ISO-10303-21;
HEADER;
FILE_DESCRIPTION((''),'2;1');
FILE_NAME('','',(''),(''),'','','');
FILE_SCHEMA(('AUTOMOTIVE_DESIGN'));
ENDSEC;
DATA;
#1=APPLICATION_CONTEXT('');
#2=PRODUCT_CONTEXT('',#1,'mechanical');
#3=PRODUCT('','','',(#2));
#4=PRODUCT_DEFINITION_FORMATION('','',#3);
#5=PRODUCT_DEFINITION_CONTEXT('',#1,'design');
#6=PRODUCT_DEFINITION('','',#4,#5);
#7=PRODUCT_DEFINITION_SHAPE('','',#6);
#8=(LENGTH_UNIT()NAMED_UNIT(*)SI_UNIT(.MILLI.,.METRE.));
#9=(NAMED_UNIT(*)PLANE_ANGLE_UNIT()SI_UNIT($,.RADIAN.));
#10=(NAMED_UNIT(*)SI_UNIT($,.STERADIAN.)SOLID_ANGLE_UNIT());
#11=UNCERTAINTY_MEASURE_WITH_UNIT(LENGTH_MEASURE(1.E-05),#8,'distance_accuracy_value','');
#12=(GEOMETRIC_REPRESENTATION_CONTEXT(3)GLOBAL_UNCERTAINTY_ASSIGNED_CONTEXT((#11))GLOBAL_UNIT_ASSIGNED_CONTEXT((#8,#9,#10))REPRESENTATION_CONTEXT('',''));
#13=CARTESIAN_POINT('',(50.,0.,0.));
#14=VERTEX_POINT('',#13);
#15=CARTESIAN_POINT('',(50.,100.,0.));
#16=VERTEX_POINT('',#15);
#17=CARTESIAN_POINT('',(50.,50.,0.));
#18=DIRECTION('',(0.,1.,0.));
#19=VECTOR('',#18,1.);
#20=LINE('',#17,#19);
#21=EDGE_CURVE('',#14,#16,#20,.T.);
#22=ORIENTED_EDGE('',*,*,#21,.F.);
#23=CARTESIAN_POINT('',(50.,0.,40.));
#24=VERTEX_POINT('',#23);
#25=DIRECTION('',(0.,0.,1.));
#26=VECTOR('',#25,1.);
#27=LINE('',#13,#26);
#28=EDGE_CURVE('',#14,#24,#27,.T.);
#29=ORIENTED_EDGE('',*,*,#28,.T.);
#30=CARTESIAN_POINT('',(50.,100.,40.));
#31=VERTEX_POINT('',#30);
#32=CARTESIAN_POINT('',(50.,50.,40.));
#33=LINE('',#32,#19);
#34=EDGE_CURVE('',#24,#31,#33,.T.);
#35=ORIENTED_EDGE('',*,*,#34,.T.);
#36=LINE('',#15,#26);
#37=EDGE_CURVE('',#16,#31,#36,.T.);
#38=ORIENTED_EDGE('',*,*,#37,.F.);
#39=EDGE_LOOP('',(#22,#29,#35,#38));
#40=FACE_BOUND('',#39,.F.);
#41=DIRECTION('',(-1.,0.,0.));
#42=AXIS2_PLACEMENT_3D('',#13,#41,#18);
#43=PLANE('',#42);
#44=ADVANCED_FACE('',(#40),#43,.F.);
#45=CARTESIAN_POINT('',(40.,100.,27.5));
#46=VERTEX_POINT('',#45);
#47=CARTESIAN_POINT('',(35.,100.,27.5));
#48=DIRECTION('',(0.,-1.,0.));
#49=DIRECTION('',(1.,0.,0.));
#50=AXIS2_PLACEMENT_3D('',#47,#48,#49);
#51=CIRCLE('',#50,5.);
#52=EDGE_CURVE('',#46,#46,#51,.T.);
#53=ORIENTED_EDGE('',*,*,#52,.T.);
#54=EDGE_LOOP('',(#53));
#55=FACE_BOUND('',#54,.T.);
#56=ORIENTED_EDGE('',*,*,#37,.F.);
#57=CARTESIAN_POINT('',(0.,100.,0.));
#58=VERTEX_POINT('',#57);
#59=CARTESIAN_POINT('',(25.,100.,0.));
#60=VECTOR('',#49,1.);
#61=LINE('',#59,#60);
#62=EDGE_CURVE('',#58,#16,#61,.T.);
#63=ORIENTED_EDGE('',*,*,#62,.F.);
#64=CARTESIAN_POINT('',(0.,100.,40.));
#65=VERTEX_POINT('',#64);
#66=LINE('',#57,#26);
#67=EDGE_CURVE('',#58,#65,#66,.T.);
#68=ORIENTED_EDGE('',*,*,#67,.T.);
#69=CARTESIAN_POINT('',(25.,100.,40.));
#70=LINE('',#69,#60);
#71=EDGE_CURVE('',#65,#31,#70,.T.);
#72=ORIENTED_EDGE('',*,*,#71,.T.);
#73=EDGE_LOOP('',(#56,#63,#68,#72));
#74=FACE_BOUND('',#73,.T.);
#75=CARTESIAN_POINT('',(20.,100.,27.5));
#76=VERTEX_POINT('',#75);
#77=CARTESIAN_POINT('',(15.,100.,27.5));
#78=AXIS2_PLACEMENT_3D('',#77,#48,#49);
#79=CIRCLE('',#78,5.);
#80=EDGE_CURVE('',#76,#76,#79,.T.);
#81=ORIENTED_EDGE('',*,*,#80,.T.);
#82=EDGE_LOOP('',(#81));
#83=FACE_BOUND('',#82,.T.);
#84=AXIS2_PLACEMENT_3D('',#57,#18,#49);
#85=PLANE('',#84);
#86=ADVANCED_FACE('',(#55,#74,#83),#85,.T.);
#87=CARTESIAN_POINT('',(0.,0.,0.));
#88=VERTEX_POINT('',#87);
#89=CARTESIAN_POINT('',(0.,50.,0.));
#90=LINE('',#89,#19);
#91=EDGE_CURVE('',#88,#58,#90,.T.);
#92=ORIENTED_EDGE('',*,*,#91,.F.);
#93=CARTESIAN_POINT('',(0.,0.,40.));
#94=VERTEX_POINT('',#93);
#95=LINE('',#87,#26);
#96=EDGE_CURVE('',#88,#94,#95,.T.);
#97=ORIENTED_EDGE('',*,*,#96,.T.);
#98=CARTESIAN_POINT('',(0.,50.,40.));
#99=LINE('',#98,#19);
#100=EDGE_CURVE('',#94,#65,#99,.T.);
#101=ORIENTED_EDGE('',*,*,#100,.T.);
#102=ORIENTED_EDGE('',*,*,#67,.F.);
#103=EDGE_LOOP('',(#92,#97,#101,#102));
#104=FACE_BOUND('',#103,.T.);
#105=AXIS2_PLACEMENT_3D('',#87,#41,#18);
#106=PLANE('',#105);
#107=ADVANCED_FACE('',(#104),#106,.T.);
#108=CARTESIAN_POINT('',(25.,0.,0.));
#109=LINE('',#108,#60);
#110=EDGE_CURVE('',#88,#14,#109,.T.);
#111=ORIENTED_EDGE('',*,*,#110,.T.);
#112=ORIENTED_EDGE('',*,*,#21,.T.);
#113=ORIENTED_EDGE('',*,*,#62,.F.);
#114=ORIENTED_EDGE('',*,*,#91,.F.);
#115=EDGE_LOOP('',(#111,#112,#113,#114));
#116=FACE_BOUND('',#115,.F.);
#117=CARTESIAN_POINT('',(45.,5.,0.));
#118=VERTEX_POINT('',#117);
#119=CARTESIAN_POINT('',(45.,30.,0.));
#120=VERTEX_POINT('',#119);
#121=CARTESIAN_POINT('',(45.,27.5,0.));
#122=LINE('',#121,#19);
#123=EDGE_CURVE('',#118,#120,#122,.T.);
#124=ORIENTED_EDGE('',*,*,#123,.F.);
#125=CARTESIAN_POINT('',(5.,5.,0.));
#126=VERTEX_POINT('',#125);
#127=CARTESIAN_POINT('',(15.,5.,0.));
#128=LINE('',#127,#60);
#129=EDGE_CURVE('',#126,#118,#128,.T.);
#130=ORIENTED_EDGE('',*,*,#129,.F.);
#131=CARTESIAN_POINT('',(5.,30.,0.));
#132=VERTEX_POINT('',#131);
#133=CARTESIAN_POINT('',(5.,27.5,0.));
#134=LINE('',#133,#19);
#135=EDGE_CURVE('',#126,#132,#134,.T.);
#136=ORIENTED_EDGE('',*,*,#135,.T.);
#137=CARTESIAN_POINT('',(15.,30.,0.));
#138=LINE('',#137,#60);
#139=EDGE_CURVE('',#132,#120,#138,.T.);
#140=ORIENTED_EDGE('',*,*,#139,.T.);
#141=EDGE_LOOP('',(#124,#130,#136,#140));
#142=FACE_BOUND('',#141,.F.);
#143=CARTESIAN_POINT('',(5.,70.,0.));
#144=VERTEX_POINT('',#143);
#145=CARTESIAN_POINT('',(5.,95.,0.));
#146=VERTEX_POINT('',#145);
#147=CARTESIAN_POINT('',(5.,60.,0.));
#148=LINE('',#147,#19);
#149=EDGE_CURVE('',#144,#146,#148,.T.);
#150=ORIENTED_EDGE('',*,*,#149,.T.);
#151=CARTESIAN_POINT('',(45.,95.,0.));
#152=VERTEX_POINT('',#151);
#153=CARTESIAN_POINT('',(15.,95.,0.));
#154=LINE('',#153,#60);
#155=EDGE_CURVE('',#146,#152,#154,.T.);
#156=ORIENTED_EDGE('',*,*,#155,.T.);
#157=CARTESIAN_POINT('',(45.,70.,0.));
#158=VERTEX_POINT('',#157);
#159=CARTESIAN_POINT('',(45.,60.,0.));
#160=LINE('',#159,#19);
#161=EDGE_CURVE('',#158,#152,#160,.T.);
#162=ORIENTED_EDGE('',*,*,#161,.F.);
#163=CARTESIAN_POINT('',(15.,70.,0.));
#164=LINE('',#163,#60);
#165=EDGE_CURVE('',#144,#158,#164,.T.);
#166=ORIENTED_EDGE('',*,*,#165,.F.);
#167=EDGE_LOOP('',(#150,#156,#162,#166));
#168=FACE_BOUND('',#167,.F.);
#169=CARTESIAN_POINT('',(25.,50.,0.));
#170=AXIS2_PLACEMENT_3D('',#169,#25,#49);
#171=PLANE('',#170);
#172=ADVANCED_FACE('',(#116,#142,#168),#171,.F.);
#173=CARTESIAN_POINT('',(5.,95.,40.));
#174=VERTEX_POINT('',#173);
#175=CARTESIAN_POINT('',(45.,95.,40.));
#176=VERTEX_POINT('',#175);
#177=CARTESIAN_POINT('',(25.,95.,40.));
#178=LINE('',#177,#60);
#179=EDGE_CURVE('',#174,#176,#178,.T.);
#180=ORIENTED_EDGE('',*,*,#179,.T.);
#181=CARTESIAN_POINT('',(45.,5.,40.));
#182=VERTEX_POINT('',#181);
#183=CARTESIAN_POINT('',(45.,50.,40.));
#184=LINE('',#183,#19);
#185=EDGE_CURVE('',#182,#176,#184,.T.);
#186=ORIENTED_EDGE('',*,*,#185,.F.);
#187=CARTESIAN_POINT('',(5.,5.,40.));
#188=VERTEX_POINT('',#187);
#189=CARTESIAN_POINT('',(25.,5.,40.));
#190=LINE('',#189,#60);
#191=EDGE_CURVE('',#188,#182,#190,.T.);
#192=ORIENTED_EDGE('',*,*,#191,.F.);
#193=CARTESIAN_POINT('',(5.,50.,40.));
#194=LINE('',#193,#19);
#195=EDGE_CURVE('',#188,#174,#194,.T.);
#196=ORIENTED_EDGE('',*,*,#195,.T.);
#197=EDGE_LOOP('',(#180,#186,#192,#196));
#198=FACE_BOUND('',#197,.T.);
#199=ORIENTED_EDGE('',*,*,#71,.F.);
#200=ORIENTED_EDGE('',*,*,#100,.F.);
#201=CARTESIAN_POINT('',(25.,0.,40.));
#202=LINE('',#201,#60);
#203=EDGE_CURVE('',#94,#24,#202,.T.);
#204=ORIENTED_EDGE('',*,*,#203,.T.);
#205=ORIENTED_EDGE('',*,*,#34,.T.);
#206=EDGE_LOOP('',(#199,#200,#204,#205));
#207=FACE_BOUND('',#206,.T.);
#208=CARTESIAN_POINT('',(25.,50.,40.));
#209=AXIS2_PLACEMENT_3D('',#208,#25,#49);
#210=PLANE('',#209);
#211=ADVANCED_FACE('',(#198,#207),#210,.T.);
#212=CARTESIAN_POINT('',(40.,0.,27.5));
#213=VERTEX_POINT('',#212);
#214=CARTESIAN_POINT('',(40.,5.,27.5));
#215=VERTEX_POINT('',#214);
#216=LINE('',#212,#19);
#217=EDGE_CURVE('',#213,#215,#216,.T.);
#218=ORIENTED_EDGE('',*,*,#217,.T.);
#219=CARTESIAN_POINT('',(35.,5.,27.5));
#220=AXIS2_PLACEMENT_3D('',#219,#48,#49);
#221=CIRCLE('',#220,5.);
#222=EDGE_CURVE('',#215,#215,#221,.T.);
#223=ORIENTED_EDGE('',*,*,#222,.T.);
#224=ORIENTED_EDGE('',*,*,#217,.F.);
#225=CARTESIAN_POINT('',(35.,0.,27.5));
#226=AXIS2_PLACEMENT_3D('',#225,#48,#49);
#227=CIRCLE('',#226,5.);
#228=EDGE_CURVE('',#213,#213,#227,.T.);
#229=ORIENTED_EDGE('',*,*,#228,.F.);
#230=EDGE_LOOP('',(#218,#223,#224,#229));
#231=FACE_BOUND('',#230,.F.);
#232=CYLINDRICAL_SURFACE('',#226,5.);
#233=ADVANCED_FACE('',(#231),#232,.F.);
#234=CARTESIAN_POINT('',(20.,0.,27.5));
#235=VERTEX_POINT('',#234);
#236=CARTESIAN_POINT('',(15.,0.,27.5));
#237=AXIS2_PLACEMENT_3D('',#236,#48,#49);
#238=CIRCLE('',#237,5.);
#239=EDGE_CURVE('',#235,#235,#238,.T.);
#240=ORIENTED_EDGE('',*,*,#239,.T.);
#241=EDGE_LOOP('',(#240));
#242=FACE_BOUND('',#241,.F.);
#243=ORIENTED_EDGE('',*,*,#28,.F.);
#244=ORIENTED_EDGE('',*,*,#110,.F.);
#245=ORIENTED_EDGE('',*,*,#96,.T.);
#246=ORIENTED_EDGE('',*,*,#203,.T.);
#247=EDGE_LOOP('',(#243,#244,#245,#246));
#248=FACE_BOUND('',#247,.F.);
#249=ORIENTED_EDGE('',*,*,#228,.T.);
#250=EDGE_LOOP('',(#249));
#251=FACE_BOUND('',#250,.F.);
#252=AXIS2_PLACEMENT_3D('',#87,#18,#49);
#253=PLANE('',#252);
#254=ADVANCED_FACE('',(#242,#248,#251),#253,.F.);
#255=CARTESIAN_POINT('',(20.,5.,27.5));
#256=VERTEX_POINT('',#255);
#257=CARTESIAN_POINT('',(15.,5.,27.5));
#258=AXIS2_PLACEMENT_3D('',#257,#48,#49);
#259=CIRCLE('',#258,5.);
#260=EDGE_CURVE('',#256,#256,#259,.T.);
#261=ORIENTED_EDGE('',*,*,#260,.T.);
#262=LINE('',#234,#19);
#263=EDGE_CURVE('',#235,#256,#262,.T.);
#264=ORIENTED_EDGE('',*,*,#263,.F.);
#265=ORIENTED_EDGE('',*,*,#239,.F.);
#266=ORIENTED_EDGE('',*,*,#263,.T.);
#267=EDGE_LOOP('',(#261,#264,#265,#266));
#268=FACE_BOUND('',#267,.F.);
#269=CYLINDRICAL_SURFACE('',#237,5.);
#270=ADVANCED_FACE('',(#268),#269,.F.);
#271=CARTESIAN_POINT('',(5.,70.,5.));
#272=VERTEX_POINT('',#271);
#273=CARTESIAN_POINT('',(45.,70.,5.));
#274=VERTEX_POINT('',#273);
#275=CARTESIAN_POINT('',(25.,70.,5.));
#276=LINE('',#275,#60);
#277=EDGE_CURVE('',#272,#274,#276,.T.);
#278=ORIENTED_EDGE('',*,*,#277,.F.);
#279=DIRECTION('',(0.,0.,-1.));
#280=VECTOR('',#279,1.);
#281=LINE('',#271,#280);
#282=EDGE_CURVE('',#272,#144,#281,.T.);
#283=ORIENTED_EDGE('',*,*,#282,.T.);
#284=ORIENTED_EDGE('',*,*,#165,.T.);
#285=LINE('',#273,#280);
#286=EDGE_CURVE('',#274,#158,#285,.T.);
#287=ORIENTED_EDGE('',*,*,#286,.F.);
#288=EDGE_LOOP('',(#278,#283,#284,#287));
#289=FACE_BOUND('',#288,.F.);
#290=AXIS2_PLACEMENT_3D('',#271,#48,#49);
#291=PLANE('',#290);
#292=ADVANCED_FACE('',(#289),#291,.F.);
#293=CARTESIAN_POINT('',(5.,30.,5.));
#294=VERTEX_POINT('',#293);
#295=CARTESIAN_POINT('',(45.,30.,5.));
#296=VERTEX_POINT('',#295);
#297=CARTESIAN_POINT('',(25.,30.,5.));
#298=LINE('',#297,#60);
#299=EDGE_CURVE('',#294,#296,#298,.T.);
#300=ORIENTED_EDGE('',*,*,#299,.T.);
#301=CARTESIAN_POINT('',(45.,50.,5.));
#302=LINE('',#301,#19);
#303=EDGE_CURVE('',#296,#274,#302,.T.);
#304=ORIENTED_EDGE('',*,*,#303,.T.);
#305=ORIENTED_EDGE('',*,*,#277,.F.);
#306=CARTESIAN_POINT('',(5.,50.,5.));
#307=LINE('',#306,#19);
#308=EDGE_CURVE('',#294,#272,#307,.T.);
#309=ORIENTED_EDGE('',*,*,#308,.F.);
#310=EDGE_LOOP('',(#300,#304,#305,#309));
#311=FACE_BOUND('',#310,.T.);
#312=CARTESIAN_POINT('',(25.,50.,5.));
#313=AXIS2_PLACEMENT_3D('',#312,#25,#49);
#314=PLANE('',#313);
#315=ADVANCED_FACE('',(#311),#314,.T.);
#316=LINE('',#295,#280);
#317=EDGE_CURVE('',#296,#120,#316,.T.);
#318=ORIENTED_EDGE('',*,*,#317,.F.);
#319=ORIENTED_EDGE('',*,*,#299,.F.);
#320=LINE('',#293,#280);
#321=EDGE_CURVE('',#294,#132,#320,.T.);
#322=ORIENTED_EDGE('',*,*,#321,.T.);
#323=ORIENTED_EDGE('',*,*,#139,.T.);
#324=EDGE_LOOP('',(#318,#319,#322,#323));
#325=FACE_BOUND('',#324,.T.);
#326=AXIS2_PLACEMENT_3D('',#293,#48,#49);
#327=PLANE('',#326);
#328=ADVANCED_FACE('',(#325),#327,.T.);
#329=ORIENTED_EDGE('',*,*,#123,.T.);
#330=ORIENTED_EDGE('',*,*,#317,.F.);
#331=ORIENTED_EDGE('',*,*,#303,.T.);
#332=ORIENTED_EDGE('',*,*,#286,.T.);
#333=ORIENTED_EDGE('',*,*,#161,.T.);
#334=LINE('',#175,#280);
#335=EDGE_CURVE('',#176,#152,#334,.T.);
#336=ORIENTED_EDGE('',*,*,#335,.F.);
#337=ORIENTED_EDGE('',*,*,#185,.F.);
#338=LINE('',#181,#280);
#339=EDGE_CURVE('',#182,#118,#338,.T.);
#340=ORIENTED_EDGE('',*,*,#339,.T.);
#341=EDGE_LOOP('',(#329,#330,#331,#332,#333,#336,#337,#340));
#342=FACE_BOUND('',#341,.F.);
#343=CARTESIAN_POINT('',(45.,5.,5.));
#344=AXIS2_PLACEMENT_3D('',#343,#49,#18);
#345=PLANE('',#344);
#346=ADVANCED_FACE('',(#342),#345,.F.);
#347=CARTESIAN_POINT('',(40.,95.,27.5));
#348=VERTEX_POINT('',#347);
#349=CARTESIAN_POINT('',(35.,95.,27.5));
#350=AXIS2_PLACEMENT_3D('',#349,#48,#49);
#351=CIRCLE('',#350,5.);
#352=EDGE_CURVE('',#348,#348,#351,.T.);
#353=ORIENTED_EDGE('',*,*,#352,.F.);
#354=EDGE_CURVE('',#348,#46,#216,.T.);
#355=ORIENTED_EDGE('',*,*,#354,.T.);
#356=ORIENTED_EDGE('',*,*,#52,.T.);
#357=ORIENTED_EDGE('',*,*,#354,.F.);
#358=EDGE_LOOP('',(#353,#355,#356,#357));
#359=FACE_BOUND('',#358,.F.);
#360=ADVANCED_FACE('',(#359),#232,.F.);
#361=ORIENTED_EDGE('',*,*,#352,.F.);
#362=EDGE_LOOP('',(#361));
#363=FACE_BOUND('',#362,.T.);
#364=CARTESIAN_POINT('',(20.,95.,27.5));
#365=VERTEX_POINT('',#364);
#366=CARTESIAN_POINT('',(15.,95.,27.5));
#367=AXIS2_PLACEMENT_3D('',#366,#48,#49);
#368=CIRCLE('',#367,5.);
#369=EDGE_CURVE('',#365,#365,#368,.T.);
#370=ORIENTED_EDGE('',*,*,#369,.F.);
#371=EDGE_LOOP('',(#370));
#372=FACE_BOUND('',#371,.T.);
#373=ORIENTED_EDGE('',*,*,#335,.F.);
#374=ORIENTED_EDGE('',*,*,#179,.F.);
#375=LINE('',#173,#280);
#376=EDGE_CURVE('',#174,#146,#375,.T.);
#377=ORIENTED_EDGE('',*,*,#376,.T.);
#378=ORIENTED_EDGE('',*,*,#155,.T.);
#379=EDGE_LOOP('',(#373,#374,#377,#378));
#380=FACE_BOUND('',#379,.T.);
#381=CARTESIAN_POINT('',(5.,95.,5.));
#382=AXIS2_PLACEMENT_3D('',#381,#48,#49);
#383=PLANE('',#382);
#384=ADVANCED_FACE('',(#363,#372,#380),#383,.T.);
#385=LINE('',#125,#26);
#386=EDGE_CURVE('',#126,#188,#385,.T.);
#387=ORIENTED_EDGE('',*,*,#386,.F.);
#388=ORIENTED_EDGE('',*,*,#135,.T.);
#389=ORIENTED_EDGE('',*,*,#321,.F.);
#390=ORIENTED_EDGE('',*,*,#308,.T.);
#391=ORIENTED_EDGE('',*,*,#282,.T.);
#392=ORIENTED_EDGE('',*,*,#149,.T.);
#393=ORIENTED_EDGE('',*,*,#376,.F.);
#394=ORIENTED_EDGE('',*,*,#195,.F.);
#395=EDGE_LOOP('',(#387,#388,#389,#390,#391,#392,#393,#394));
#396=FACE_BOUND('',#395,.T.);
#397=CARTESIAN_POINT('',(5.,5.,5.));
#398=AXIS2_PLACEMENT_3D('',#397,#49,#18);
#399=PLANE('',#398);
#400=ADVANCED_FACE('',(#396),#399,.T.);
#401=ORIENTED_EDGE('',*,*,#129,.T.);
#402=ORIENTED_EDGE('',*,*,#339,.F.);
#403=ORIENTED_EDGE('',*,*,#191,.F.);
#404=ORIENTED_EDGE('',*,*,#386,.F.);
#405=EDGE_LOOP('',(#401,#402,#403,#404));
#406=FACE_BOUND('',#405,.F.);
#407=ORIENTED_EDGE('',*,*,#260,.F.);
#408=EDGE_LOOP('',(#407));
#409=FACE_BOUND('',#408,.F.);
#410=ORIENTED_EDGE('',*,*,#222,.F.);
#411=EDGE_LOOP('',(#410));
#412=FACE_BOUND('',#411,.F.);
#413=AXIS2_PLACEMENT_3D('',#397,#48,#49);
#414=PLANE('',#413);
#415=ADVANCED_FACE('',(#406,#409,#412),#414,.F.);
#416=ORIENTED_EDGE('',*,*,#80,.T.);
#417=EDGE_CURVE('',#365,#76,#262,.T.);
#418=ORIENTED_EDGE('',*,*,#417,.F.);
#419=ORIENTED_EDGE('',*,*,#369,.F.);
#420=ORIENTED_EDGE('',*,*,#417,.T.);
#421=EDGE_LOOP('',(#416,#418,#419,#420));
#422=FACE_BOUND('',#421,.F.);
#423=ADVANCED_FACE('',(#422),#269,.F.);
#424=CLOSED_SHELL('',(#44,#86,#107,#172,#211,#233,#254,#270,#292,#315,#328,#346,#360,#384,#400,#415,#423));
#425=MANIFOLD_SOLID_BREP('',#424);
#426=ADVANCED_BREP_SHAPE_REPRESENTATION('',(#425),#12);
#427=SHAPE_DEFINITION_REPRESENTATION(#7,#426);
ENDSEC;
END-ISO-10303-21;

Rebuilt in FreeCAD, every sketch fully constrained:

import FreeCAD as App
import Part
import Sketcher
Q = App.Units.Quantity

doc = App.newDocument("Part")
body = doc.addObject("PartDesign::Body", "Body")

sketch1 = body.newObject("Sketcher::SketchObject", "Sketch")
sketch1.AttachmentSupport = (doc.getObject("XY_Plane"), [""])
sketch1.MapMode = "FlatFace"
sketch1.addGeometry([
    Part.LineSegment(App.Vector(0, 100, 0), App.Vector(0, 0, 0)),
    Part.LineSegment(App.Vector(0, 0, 0), App.Vector(50, 0, 0)),
    Part.LineSegment(App.Vector(50, 0, 0), App.Vector(50, 100, 0)),
    Part.LineSegment(App.Vector(50, 100, 0), App.Vector(0, 100, 0)),
], False)
sketch1.addConstraint([
    Sketcher.Constraint("Coincident", 0, 2, 1, 1),
    Sketcher.Constraint("Coincident", 1, 2, 2, 1),
    Sketcher.Constraint("Coincident", 2, 2, 3, 1),
    Sketcher.Constraint("Coincident", 3, 2, 0, 1),
    Sketcher.Constraint("Vertical", 0),
    Sketcher.Constraint("Horizontal", 1),
    Sketcher.Constraint("Vertical", 2),
    Sketcher.Constraint("Horizontal", 3),
    Sketcher.Constraint("Coincident", 0, 2, -1, 1),
    Sketcher.Constraint("DistanceX", 1, 1, 1, 2, Q("50 mm")),
    Sketcher.Constraint("DistanceY", 0, 2, 0, 1, Q("100 mm")),
])
pad1 = body.newObject("PartDesign::Pad", "Pad")
pad1.Profile = sketch1
pad1.Length = 40

sketch2 = body.newObject("Sketcher::SketchObject", "Sketch001")
sketch2.AttachmentSupport = (doc.getObject("XY_Plane"), [""])
sketch2.MapMode = "FlatFace"
sketch2.AttachmentOffset = App.Placement(App.Vector(0, 0, 40), App.Rotation())
sketch2.addGeometry([
    Part.LineSegment(App.Vector(5, 95, 0), App.Vector(5, 5, 0)),
    Part.LineSegment(App.Vector(5, 5, 0), App.Vector(45, 5, 0)),
    Part.LineSegment(App.Vector(45, 5, 0), App.Vector(45, 95, 0)),
    Part.LineSegment(App.Vector(45, 95, 0), App.Vector(5, 95, 0)),
], False)
sketch2.addConstraint([
    Sketcher.Constraint("Coincident", 0, 2, 1, 1),
    Sketcher.Constraint("Coincident", 1, 2, 2, 1),
    Sketcher.Constraint("Coincident", 2, 2, 3, 1),
    Sketcher.Constraint("Coincident", 3, 2, 0, 1),
    Sketcher.Constraint("Vertical", 0),
    Sketcher.Constraint("Horizontal", 1),
    Sketcher.Constraint("Vertical", 2),
    Sketcher.Constraint("Horizontal", 3),
    Sketcher.Constraint("DistanceX", 1, 1, 1, 2, Q("40 mm")),
    Sketcher.Constraint("DistanceY", 0, 2, 0, 1, Q("90 mm")),
    Sketcher.Constraint("DistanceX", -1, 1, 0, 2, Q("5 mm")),
    Sketcher.Constraint("DistanceY", -1, 1, 0, 2, Q("5 mm")),
])
pocket1 = body.newObject("PartDesign::Pocket", "Pocket")
pocket1.Profile = sketch2
pocket1.Length = 35

sketch3 = body.newObject("Sketcher::SketchObject", "Sketch002")
sketch3.AttachmentSupport = (doc.getObject("XY_Plane"), [""])
sketch3.MapMode = "FlatFace"
sketch3.AttachmentOffset = App.Placement(App.Vector(0, 0, 5), App.Rotation())
sketch3.addGeometry([
    Part.LineSegment(App.Vector(5, 95, 0), App.Vector(5, 70, 0)),
    Part.LineSegment(App.Vector(5, 70, 0), App.Vector(45, 70, 0)),
    Part.LineSegment(App.Vector(45, 70, 0), App.Vector(45, 95, 0)),
    Part.LineSegment(App.Vector(45, 95, 0), App.Vector(5, 95, 0)),
], False)
sketch3.addConstraint([
    Sketcher.Constraint("Coincident", 0, 2, 1, 1),
    Sketcher.Constraint("Coincident", 1, 2, 2, 1),
    Sketcher.Constraint("Coincident", 2, 2, 3, 1),
    Sketcher.Constraint("Coincident", 3, 2, 0, 1),
    Sketcher.Constraint("Vertical", 0),
    Sketcher.Constraint("Horizontal", 1),
    Sketcher.Constraint("Vertical", 2),
    Sketcher.Constraint("Horizontal", 3),
    Sketcher.Constraint("DistanceX", 1, 1, 1, 2, Q("40 mm")),
    Sketcher.Constraint("DistanceY", 0, 2, 0, 1, Q("25 mm")),
    Sketcher.Constraint("DistanceX", -1, 1, 0, 2, Q("5 mm")),
    Sketcher.Constraint("DistanceY", -1, 1, 0, 2, Q("70 mm")),
])
pocket2 = body.newObject("PartDesign::Pocket", "Pocket001")
pocket2.Profile = sketch3
pocket2.Type = "ThroughAll"

sketch4 = body.newObject("Sketcher::SketchObject", "Sketch003")
sketch4.AttachmentSupport = (doc.getObject("XY_Plane"), [""])
sketch4.MapMode = "FlatFace"
sketch4.AttachmentOffset = App.Placement(App.Vector(0, 0, 5), App.Rotation())
sketch4.addGeometry([
    Part.LineSegment(App.Vector(5, 30, 0), App.Vector(5, 5, 0)),
    Part.LineSegment(App.Vector(5, 5, 0), App.Vector(45, 5, 0)),
    Part.LineSegment(App.Vector(45, 5, 0), App.Vector(45, 30, 0)),
    Part.LineSegment(App.Vector(45, 30, 0), App.Vector(5, 30, 0)),
], False)
sketch4.addConstraint([
    Sketcher.Constraint("Coincident", 0, 2, 1, 1),
    Sketcher.Constraint("Coincident", 1, 2, 2, 1),
    Sketcher.Constraint("Coincident", 2, 2, 3, 1),
    Sketcher.Constraint("Coincident", 3, 2, 0, 1),
    Sketcher.Constraint("Vertical", 0),
    Sketcher.Constraint("Horizontal", 1),
    Sketcher.Constraint("Vertical", 2),
    Sketcher.Constraint("Horizontal", 3),
    Sketcher.Constraint("DistanceX", 1, 1, 1, 2, Q("40 mm")),
    Sketcher.Constraint("DistanceY", 0, 2, 0, 1, Q("25 mm")),
    Sketcher.Constraint("DistanceX", -1, 1, 0, 2, Q("5 mm")),
    Sketcher.Constraint("DistanceY", -1, 1, 0, 2, Q("5 mm")),
])
pocket3 = body.newObject("PartDesign::Pocket", "Pocket002")
pocket3.Profile = sketch4
pocket3.Type = "ThroughAll"

sketch5 = body.newObject("Sketcher::SketchObject", "Sketch004")
sketch5.AttachmentSupport = (doc.getObject("XZ_Plane"), [""])
sketch5.MapMode = "FlatFace"
sketch5.addGeometry([
    Part.Circle(App.Vector(15, 28, 0), App.Vector(0, 0, 1), 5),
    Part.Circle(App.Vector(35, 28, 0), App.Vector(0, 0, 1), 5),
], False)
sketch5.addConstraint([
    Sketcher.Constraint("Equal", 0, 1),
    Sketcher.Constraint("Horizontal", 0, 3, 1, 3),
    Sketcher.Constraint("Diameter", 0, Q("10 mm")),
    Sketcher.Constraint("DistanceX", -1, 1, 0, 3, Q("15 mm")),
    Sketcher.Constraint("DistanceX", -1, 1, 1, 3, Q("35 mm")),
    Sketcher.Constraint("DistanceY", -1, 1, 0, 3, Q("27.5 mm")),
])
pocket4 = body.newObject("PartDesign::Pocket", "Pocket003")
pocket4.Profile = sketch5
pocket4.Type = "ThroughAll"

doc.recompute()
